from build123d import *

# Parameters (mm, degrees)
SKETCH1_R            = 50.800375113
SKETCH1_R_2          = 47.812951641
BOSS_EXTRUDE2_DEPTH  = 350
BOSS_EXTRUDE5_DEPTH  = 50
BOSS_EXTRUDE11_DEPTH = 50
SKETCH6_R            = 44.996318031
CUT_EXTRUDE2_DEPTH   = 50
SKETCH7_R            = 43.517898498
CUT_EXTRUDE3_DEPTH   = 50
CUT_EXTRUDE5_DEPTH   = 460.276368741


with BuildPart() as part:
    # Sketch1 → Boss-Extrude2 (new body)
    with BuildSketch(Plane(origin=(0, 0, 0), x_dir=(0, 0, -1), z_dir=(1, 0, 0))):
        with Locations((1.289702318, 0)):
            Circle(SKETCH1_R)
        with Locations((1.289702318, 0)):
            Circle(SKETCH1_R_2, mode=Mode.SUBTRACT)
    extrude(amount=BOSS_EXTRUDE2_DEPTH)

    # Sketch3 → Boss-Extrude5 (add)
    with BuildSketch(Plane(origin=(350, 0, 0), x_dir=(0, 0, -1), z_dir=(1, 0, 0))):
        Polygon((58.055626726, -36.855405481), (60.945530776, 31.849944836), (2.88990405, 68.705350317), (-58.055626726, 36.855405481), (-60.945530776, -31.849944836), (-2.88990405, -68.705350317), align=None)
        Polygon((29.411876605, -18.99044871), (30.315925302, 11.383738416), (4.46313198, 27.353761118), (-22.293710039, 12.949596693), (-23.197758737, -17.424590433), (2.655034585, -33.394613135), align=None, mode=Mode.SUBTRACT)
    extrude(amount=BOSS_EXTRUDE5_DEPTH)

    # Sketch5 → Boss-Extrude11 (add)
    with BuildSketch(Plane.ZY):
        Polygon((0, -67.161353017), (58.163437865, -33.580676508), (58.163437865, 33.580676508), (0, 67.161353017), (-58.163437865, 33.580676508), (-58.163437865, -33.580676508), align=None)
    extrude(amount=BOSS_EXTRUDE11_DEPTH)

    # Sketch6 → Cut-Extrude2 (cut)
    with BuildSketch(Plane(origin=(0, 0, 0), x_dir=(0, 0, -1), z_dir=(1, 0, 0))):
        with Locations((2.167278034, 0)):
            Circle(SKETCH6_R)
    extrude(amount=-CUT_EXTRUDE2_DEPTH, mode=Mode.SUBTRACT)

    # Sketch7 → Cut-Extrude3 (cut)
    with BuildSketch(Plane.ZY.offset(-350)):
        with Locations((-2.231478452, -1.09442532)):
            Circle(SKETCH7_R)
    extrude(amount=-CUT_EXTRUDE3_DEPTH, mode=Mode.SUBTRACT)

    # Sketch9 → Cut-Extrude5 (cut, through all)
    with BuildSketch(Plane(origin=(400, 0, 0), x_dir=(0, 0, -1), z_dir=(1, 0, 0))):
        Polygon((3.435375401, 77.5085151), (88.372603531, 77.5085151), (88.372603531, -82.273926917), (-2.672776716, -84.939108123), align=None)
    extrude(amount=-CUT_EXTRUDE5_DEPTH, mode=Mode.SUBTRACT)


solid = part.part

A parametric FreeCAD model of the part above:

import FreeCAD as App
import Part
import Sketcher

V = App.Vector
Q = App.Units.Quantity


def add_polygon(sketch, points):
    """Adds a closed chain of lines whose ends are joined by coincident constraints."""
    first, n = sketch.GeometryCount, len(points)
    for a, b in zip(points, points[1:] + points[:1]):
        sketch.addGeometry(Part.LineSegment(App.Vector(*a, 0), App.Vector(*b, 0)), False)
    for i in range(n):
        sketch.addConstraint(Sketcher.Constraint("Coincident", first + i, 2, first + (i + 1) % n, 1))

doc = App.newDocument("Part")
body = doc.addObject("PartDesign::Body", "Body")

# Sketch on YZ plane
sketch1 = body.newObject("Sketcher::SketchObject", "Sketch")
sketch1.AttachmentSupport = (doc.getObject("YZ_Plane"), [""])
sketch1.MapMode = "FlatFace"
sketch1.addGeometry([
    Part.Circle(V(0, -1, 0), V(0, 0, 1), 51),
    Part.Circle(V(0, -1, 0), V(0, 0, 1), 48),
], False)
sketch1.addConstraint([
    Sketcher.Constraint("Coincident", 1, 3, 0, 3),
    Sketcher.Constraint("PointOnObject", 0, 3, -2),
    Sketcher.Constraint("Diameter", 0, 101.60075),
    Sketcher.Constraint("Diameter", 1, 95.625903),
    Sketcher.Constraint("DistanceY", 0, 3, -1, 1, 1.289702),
])
pad1 = body.newObject("PartDesign::Pad", "Pad")
pad1.Profile = sketch1
pad1.Length = 350

# Sketch on YZ plane
sketch2 = body.newObject("Sketcher::SketchObject", "Sketch001")
sketch2.AttachmentSupport = (doc.getObject("YZ_Plane"), [""])
sketch2.MapMode = "FlatFace"
sketch2.AttachmentOffset = App.Placement(V(0, 0, 350), App.Rotation())
add_polygon(sketch2, [(-37, -58), (32, -61), (69, -3), (37, 58), (-32, 61), (-69, 3)])  # lines 0-5
add_polygon(sketch2, [(11, -30), (-19, -29), (-33, -3), (-17, 23), (13, 22), (27, -4)])  # lines 6-11
sketch2.addConstraint([
    Sketcher.Constraint("Symmetric", 0, 2, 3, 2, -1, 1),
    Sketcher.Constraint("Symmetric", 1, 2, 4, 2, -1, 1),
    Sketcher.Constraint("Symmetric", 2, 2, 5, 2, -1, 1),
    Sketcher.Constraint("Parallel", 6, 9),
    Sketcher.Constraint("Parallel", 7, 10),
    Sketcher.Constraint("Parallel", 8, 11),
    Sketcher.Constraint("Equal", 0, 1),
    Sketcher.Constraint("Equal", 1, 2),
    Sketcher.Constraint("Equal", 6, 7),
    Sketcher.Constraint("Equal", 7, 8),
    Sketcher.Constraint("Equal", 8, 9),
    Sketcher.Constraint("Distance", 0, 68.766101),
    Sketcher.Constraint("DistanceX", 4, 2, 1, 2, 137.410701),
    Sketcher.Constraint("DistanceX", 4, 2, 6, 2, 49.714902),
    Sketcher.Constraint("DistanceY", 0, 2, 10, 2, 56.482399),
    Sketcher.Constraint("Distance", 6, 30.387638),
    Sketcher.Constraint("DistanceY", 0, 2, -1, 1, 60.945531),
    Sketcher.Constraint("DistanceX", 8, 2, -1, 1, 17.42459),
    Sketcher.Constraint("DistanceY", -1, 1, 8, 2, 23.197759),
    Sketcher.Constraint("DistanceY", -1, 1, 9, 2, 22.29371),
    Sketcher.Constraint("DistanceY", 1, 2, 2, 2, 60.945531),
])
pad2 = body.newObject("PartDesign::Pad", "Pad001")
pad2.Profile = sketch2
pad2.Length = 50

# Sketch on YZ plane
sketch3 = body.newObject("Sketcher::SketchObject", "Sketch002")
sketch3.AttachmentSupport = (doc.getObject("YZ_Plane"), [""])
sketch3.MapMode = "FlatFace"
add_polygon(sketch3, [(-67, 0), (-34, 58), (34, 58), (67, 0), (34, -58), (-34, -58)])  # lines 0-5
sketch3.addConstraint([
    Sketcher.Constraint("Horizontal", 1),
    Sketcher.Constraint("Horizontal", 4),
    Sketcher.Constraint("Symmetric", 0, 2, 3, 2, -1, 1),
    Sketcher.Constraint("Symmetric", 2, 2, 5, 2, -1, 1),
    Sketcher.Constraint("PointOnObject", 2, 2, -1),
    Sketcher.Constraint("Parallel", 2, 5),
    Sketcher.Constraint("Vertical", 1, 2, 3, 2),
    Sketcher.Constraint("Angle", 0, Q("60 deg")),
    Sketcher.Constraint("DistanceX", 1, 1, 1, 2, 67.161353),
    Sketcher.Constraint("DistanceX", 0, 2, 2, 2, 100.74203),
])
pad3 = body.newObject("PartDesign::Pad", "Pad002")
pad3.Profile = sketch3
pad3.Length = 50
pad3.Reversed = True

# Sketch on YZ plane
sketch4 = body.newObject("Sketcher::SketchObject", "Sketch003")
sketch4.AttachmentSupport = (doc.getObject("YZ_Plane"), [""])
sketch4.MapMode = "FlatFace"
sketch4.addGeometry(Part.Circle(V(0, -2, 0), V(0, 0, 1), 45), False)
sketch4.addConstraint([
    Sketcher.Constraint("PointOnObject", 0, 3, -2),
    Sketcher.Constraint("Diameter", 0, 89.992636),
    Sketcher.Constraint("DistanceY", 0, 3, -1, 1, 2.167278),
])
pocket1 = body.newObject("PartDesign::Pocket", "Pocket")
pocket1.Profile = sketch4
pocket1.Length = 50

# Sketch on YZ plane
sketch5 = body.newObject("Sketcher::SketchObject", "Sketch004")
sketch5.AttachmentSupport = (doc.getObject("YZ_Plane"), [""])
sketch5.MapMode = "FlatFace"
sketch5.AttachmentOffset = App.Placement(V(0, 0, 350), App.Rotation())
sketch5.addGeometry(Part.Circle(V(-1, -2, 0), V(0, 0, 1), 44), False)
sketch5.addConstraint([
    Sketcher.Constraint("Diameter", 0, 87.035797),
    Sketcher.Constraint("DistanceY", 0, 3, -1, 1, 2.231478),
    Sketcher.Constraint("DistanceX", 0, 3, -1, 1, 1.094425),
])
pocket2 = body.newObject("PartDesign::Pocket", "Pocket001")
pocket2.Profile = sketch5
pocket2.Length = 50
pocket2.Reversed = True

# Sketch on YZ plane
sketch6 = body.newObject("Sketcher::SketchObject", "Sketch005")
sketch6.AttachmentSupport = (doc.getObject("YZ_Plane"), [""])
sketch6.MapMode = "FlatFace"
sketch6.AttachmentOffset = App.Placement(V(0, 0, 400), App.Rotation())
add_polygon(sketch6, [(78, -88), (78, -3), (-85, 3), (-82, -88)])  # lines 0-3
sketch6.addConstraint([
    Sketcher.Constraint("Vertical", 0),
    Sketcher.Constraint("Horizontal", 3),
    Sketcher.Constraint("DistanceY", 0, 1, 0, 2, 84.937228),
    Sketcher.Constraint("Distance", 1, 162.562418),
    Sketcher.Constraint("Distance", 2, 91.084381),
    Sketcher.Constraint("DistanceX", 3, 1, 3, 2, 159.782442),
    Sketcher.Constraint("DistanceX", 1, 2, -1, 1, 84.939108),
    Sketcher.Constraint("DistanceY", 0, 2, -1, 1, 3.435375),
])
pocket3 = body.newObject("PartDesign::Pocket", "Pocket002")
pocket3.Profile = sketch6
pocket3.Type = "ThroughAll"

doc.recompute()
